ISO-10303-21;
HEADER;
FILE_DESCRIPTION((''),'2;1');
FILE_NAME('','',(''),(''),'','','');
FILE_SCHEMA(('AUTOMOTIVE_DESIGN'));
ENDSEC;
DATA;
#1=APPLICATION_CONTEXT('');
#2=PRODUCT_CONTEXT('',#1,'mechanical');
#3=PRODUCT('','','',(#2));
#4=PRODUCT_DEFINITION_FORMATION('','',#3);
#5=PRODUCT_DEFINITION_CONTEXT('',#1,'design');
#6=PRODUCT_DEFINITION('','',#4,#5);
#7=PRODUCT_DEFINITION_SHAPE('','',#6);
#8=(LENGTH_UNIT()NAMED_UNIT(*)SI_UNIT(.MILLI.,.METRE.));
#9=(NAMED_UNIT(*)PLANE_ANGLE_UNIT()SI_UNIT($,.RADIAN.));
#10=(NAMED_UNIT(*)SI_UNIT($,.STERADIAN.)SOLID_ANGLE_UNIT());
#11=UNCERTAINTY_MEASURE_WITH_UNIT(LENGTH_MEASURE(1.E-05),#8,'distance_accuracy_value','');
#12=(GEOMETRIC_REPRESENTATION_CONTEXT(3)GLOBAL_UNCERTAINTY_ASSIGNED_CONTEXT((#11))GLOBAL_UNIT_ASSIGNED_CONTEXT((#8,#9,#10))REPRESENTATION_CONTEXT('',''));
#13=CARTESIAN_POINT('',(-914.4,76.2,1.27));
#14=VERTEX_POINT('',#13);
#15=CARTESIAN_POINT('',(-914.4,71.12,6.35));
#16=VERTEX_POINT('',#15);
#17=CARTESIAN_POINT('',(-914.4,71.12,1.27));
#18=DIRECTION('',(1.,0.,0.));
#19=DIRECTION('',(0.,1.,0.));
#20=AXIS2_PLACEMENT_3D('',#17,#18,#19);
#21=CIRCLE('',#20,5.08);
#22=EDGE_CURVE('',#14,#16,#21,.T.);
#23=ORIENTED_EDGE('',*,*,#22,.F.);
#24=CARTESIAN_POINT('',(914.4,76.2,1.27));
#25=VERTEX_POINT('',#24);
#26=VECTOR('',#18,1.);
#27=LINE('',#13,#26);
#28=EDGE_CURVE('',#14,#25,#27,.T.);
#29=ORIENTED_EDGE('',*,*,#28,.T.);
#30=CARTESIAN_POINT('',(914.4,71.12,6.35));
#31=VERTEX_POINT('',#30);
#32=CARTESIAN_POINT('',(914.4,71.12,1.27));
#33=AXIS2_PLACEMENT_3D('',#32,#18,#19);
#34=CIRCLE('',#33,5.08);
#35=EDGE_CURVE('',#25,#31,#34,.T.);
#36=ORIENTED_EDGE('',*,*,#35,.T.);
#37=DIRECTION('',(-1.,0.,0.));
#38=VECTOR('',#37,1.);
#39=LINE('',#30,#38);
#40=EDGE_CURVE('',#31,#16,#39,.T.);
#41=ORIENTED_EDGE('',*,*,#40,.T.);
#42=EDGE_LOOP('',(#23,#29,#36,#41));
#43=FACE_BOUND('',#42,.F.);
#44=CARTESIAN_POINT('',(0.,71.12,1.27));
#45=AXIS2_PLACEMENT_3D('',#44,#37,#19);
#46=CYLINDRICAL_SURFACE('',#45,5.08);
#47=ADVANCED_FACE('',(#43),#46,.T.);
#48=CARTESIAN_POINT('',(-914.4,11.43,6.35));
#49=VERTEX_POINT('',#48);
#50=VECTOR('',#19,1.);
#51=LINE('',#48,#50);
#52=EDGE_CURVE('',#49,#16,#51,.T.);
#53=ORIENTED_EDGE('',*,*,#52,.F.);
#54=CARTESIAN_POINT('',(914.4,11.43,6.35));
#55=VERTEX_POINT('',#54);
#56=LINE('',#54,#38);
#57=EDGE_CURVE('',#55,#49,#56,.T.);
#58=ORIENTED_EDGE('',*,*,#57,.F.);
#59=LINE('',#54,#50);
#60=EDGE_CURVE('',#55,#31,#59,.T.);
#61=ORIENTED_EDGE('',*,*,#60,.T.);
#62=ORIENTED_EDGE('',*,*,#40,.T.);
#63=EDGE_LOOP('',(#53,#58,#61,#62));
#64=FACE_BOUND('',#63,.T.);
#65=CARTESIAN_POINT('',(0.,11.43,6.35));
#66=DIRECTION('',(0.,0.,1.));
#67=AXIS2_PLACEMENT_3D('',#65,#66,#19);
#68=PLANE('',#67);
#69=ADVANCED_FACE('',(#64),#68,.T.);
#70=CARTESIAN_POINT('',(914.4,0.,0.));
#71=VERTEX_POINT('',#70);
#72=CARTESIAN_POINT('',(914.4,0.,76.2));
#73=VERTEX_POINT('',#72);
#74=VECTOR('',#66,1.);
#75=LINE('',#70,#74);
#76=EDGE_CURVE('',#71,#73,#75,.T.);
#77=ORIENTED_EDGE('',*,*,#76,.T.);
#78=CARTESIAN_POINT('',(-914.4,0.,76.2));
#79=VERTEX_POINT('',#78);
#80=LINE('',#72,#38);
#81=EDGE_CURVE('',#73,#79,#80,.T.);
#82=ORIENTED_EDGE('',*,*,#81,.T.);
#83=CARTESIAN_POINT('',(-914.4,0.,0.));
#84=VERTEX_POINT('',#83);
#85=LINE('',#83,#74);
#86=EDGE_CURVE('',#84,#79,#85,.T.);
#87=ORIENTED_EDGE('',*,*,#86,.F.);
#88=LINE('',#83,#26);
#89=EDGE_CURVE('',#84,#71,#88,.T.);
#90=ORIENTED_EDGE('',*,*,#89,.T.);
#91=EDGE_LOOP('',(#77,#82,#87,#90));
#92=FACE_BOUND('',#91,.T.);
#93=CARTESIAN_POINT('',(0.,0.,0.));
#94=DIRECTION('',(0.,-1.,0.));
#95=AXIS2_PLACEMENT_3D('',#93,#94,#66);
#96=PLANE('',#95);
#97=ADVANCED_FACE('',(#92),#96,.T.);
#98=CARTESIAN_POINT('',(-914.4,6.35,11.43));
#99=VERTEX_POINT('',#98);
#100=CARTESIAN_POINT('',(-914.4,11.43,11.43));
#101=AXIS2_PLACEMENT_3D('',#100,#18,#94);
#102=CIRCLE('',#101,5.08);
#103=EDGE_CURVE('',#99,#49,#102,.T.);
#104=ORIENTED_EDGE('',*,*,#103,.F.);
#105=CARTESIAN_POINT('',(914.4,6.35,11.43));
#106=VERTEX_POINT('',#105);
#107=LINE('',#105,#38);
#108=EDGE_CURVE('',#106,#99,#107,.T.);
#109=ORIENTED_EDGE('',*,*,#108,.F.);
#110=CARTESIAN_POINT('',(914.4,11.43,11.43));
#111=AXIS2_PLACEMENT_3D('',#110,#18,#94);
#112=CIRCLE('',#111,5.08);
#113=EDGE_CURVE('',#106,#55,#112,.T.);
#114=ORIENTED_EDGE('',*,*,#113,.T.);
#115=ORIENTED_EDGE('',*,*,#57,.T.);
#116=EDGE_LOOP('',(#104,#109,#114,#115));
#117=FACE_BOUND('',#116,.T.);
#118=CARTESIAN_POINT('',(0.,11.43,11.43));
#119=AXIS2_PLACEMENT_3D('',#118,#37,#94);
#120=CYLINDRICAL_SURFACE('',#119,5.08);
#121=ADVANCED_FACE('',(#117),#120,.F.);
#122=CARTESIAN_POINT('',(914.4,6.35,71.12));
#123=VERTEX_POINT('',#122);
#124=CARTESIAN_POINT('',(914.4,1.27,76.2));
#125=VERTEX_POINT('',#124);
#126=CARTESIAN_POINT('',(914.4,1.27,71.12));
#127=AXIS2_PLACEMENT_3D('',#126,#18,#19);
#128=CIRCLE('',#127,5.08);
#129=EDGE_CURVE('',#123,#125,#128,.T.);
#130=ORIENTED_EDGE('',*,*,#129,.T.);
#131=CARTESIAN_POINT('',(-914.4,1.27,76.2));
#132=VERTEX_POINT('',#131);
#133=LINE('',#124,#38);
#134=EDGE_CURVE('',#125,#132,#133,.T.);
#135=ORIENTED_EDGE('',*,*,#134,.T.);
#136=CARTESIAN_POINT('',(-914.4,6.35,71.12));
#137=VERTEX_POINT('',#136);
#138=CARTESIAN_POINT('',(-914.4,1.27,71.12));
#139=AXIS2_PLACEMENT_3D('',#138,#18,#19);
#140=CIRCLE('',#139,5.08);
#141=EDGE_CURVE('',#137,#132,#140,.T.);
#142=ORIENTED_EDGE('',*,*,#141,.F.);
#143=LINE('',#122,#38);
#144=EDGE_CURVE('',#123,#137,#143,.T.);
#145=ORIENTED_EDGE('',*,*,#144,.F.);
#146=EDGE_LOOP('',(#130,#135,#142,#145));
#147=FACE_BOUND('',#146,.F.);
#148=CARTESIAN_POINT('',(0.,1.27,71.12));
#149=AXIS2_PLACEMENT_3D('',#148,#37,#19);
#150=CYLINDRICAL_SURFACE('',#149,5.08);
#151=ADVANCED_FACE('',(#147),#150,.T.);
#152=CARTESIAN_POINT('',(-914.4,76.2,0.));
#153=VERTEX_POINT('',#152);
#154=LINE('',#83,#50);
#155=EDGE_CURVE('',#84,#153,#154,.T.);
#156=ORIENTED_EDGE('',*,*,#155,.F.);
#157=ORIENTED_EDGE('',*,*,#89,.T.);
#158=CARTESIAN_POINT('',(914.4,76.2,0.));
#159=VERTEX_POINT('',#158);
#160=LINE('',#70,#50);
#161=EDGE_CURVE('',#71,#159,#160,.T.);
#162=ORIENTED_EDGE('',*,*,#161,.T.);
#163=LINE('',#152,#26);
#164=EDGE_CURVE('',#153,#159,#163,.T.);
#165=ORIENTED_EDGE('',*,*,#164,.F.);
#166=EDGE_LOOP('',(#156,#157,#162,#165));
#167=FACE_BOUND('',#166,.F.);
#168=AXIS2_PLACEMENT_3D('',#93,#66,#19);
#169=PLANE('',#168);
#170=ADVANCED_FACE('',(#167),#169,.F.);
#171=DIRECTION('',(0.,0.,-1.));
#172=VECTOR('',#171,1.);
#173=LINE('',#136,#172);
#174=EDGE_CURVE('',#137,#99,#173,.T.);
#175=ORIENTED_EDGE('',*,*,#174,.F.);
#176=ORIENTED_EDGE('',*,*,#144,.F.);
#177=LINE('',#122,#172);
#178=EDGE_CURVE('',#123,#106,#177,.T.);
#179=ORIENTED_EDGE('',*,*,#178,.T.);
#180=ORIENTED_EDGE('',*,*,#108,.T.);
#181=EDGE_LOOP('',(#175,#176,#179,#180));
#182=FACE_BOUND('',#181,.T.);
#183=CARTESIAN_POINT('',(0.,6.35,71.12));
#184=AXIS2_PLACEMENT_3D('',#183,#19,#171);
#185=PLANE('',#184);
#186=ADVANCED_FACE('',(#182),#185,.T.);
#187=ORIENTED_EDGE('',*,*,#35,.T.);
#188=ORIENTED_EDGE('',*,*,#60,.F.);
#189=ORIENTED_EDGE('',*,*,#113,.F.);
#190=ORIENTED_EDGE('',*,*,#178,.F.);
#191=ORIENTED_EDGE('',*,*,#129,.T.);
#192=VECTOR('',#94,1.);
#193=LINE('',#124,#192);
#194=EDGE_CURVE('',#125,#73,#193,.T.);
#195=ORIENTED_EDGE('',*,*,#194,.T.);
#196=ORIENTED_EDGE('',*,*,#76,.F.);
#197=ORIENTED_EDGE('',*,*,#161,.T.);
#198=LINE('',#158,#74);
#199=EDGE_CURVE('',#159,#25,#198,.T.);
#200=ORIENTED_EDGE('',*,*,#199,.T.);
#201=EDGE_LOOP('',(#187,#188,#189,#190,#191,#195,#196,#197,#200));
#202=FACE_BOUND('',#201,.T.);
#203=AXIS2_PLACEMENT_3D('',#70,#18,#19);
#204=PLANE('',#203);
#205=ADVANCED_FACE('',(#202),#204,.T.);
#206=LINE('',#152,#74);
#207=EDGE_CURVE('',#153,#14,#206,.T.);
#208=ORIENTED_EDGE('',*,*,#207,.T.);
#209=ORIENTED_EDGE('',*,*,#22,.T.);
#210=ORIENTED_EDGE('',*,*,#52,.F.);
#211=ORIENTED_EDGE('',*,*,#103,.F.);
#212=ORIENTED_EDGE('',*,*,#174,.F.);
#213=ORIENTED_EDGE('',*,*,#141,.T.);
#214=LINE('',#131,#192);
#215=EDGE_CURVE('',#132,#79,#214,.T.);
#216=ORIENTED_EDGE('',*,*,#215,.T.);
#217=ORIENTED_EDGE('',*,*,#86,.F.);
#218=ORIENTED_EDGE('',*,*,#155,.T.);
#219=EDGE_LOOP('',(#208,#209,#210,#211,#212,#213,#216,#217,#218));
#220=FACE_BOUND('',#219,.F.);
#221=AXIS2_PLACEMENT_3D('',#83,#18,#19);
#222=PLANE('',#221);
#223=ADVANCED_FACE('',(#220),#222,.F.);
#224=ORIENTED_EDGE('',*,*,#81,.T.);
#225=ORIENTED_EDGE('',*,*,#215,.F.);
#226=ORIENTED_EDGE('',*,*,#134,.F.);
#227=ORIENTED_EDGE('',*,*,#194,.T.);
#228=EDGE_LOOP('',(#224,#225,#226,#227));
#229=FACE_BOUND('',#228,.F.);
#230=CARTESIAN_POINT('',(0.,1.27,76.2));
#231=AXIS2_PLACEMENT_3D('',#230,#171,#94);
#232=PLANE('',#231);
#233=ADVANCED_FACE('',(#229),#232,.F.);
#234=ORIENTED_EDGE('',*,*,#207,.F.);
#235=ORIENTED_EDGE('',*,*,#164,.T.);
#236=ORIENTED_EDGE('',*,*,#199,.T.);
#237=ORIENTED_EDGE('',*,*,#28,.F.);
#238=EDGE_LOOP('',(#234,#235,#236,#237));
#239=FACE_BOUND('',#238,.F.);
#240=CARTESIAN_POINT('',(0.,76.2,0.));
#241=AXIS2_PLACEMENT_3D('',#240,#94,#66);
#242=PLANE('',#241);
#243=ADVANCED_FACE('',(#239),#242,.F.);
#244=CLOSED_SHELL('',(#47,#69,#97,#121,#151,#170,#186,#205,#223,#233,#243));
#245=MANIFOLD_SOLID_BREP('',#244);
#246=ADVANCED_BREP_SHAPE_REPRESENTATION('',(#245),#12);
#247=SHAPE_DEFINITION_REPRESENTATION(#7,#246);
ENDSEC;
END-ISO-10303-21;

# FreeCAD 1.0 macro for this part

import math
import FreeCAD as App
import Part
import Sketcher
Q = App.Units.Quantity

doc = App.newDocument("Part")
body = doc.addObject("PartDesign::Body", "Body")

# Sketch on YZ plane
sketch1 = body.newObject("Sketcher::SketchObject", "Sketch")
sketch1.AttachmentSupport = (doc.getObject("YZ_Plane"), [""])
sketch1.MapMode = "FlatFace"
sketch1.addGeometry(Part.LineSegment(App.Vector(0, 76.2, 0), App.Vector(0, 0, 0)), False)
sketch1.addGeometry(Part.LineSegment(App.Vector(0, 0, 0), App.Vector(76.2, 0, 0)), False)
sketch1.addGeometry(Part.LineSegment(App.Vector(76.2, 0, 0), App.Vector(76.2, 1.3, 0)), False)
sketch1.addGeometry(Part.ArcOfCircle(Part.Circle(App.Vector(71.1, 1.3, 0), App.Vector(0, 0, 1), 5.1), math.radians(0), math.radians(90)), False)
sketch1.addGeometry(Part.LineSegment(App.Vector(71.1, 6.3, 0), App.Vector(11.4, 6.3, 0)), False)
sketch1.addGeometry(Part.ArcOfCircle(Part.Circle(App.Vector(11.4, 11.4, 0), App.Vector(0, 0, 1), 5.1), math.radians(180), math.radians(270)), False)
sketch1.addGeometry(Part.LineSegment(App.Vector(6.3, 11.4, 0), App.Vector(6.3, 71.1, 0)), False)
sketch1.addGeometry(Part.ArcOfCircle(Part.Circle(App.Vector(1.3, 71.1, 0), App.Vector(0, 0, 1), 5.1), math.radians(0), math.radians(90)), False)
sketch1.addGeometry(Part.LineSegment(App.Vector(1.3, 76.2, 0), App.Vector(0, 76.2, 0)), False)
sketch1.addConstraint(Sketcher.Constraint("Coincident", 0, 2, 1, 1))
sketch1.addConstraint(Sketcher.Constraint("Coincident", 1, 2, 2, 1))
sketch1.addConstraint(Sketcher.Constraint("Tangent", 2, 2, 3, 1))
sketch1.addConstraint(Sketcher.Constraint("Tangent", 3, 2, 4, 1))
sketch1.addConstraint(Sketcher.Constraint("Tangent", 4, 2, 5, 2))
sketch1.addConstraint(Sketcher.Constraint("Tangent", 5, 1, 6, 1))
sketch1.addConstraint(Sketcher.Constraint("Tangent", 6, 2, 7, 1))
sketch1.addConstraint(Sketcher.Constraint("Tangent", 7, 2, 8, 1))
sketch1.addConstraint(Sketcher.Constraint("Coincident", 8, 2, 0, 1))
sketch1.addConstraint(Sketcher.Constraint("Vertical", 0))
sketch1.addConstraint(Sketcher.Constraint("Horizontal", 1))
sketch1.addConstraint(Sketcher.Constraint("Vertical", 2))
sketch1.addConstraint(Sketcher.Constraint("Horizontal", 4))
sketch1.addConstraint(Sketcher.Constraint("Vertical", 6))
sketch1.addConstraint(Sketcher.Constraint("Horizontal", 8))
sketch1.addConstraint(Sketcher.Constraint("Coincident", 0, 2, -1, 1))
sketch1.addConstraint(Sketcher.Constraint("Equal", 3, 5))
sketch1.addConstraint(Sketcher.Constraint("Equal", 5, 7))
sketch1.addConstraint(Sketcher.Constraint("Equal", 1, 0))
sketch1.addConstraint(Sketcher.Constraint("Equal", 8, 2))
sketch1.addConstraint(Sketcher.Constraint("Radius", 3, Q("0.2 in")))
sketch1.addConstraint(Sketcher.Constraint("DistanceX", 1, 1, 1, 2, Q("3 in")))
sketch1.addConstraint(Sketcher.Constraint("DistanceY", -1, 1, 3, 2, Q("0.25 in")))
pad1 = body.newObject("PartDesign::Pad", "Pad")
pad1.Profile = sketch1
pad1.Length = Q("72 in")
pad1.Midplane = True

doc.recompute()
